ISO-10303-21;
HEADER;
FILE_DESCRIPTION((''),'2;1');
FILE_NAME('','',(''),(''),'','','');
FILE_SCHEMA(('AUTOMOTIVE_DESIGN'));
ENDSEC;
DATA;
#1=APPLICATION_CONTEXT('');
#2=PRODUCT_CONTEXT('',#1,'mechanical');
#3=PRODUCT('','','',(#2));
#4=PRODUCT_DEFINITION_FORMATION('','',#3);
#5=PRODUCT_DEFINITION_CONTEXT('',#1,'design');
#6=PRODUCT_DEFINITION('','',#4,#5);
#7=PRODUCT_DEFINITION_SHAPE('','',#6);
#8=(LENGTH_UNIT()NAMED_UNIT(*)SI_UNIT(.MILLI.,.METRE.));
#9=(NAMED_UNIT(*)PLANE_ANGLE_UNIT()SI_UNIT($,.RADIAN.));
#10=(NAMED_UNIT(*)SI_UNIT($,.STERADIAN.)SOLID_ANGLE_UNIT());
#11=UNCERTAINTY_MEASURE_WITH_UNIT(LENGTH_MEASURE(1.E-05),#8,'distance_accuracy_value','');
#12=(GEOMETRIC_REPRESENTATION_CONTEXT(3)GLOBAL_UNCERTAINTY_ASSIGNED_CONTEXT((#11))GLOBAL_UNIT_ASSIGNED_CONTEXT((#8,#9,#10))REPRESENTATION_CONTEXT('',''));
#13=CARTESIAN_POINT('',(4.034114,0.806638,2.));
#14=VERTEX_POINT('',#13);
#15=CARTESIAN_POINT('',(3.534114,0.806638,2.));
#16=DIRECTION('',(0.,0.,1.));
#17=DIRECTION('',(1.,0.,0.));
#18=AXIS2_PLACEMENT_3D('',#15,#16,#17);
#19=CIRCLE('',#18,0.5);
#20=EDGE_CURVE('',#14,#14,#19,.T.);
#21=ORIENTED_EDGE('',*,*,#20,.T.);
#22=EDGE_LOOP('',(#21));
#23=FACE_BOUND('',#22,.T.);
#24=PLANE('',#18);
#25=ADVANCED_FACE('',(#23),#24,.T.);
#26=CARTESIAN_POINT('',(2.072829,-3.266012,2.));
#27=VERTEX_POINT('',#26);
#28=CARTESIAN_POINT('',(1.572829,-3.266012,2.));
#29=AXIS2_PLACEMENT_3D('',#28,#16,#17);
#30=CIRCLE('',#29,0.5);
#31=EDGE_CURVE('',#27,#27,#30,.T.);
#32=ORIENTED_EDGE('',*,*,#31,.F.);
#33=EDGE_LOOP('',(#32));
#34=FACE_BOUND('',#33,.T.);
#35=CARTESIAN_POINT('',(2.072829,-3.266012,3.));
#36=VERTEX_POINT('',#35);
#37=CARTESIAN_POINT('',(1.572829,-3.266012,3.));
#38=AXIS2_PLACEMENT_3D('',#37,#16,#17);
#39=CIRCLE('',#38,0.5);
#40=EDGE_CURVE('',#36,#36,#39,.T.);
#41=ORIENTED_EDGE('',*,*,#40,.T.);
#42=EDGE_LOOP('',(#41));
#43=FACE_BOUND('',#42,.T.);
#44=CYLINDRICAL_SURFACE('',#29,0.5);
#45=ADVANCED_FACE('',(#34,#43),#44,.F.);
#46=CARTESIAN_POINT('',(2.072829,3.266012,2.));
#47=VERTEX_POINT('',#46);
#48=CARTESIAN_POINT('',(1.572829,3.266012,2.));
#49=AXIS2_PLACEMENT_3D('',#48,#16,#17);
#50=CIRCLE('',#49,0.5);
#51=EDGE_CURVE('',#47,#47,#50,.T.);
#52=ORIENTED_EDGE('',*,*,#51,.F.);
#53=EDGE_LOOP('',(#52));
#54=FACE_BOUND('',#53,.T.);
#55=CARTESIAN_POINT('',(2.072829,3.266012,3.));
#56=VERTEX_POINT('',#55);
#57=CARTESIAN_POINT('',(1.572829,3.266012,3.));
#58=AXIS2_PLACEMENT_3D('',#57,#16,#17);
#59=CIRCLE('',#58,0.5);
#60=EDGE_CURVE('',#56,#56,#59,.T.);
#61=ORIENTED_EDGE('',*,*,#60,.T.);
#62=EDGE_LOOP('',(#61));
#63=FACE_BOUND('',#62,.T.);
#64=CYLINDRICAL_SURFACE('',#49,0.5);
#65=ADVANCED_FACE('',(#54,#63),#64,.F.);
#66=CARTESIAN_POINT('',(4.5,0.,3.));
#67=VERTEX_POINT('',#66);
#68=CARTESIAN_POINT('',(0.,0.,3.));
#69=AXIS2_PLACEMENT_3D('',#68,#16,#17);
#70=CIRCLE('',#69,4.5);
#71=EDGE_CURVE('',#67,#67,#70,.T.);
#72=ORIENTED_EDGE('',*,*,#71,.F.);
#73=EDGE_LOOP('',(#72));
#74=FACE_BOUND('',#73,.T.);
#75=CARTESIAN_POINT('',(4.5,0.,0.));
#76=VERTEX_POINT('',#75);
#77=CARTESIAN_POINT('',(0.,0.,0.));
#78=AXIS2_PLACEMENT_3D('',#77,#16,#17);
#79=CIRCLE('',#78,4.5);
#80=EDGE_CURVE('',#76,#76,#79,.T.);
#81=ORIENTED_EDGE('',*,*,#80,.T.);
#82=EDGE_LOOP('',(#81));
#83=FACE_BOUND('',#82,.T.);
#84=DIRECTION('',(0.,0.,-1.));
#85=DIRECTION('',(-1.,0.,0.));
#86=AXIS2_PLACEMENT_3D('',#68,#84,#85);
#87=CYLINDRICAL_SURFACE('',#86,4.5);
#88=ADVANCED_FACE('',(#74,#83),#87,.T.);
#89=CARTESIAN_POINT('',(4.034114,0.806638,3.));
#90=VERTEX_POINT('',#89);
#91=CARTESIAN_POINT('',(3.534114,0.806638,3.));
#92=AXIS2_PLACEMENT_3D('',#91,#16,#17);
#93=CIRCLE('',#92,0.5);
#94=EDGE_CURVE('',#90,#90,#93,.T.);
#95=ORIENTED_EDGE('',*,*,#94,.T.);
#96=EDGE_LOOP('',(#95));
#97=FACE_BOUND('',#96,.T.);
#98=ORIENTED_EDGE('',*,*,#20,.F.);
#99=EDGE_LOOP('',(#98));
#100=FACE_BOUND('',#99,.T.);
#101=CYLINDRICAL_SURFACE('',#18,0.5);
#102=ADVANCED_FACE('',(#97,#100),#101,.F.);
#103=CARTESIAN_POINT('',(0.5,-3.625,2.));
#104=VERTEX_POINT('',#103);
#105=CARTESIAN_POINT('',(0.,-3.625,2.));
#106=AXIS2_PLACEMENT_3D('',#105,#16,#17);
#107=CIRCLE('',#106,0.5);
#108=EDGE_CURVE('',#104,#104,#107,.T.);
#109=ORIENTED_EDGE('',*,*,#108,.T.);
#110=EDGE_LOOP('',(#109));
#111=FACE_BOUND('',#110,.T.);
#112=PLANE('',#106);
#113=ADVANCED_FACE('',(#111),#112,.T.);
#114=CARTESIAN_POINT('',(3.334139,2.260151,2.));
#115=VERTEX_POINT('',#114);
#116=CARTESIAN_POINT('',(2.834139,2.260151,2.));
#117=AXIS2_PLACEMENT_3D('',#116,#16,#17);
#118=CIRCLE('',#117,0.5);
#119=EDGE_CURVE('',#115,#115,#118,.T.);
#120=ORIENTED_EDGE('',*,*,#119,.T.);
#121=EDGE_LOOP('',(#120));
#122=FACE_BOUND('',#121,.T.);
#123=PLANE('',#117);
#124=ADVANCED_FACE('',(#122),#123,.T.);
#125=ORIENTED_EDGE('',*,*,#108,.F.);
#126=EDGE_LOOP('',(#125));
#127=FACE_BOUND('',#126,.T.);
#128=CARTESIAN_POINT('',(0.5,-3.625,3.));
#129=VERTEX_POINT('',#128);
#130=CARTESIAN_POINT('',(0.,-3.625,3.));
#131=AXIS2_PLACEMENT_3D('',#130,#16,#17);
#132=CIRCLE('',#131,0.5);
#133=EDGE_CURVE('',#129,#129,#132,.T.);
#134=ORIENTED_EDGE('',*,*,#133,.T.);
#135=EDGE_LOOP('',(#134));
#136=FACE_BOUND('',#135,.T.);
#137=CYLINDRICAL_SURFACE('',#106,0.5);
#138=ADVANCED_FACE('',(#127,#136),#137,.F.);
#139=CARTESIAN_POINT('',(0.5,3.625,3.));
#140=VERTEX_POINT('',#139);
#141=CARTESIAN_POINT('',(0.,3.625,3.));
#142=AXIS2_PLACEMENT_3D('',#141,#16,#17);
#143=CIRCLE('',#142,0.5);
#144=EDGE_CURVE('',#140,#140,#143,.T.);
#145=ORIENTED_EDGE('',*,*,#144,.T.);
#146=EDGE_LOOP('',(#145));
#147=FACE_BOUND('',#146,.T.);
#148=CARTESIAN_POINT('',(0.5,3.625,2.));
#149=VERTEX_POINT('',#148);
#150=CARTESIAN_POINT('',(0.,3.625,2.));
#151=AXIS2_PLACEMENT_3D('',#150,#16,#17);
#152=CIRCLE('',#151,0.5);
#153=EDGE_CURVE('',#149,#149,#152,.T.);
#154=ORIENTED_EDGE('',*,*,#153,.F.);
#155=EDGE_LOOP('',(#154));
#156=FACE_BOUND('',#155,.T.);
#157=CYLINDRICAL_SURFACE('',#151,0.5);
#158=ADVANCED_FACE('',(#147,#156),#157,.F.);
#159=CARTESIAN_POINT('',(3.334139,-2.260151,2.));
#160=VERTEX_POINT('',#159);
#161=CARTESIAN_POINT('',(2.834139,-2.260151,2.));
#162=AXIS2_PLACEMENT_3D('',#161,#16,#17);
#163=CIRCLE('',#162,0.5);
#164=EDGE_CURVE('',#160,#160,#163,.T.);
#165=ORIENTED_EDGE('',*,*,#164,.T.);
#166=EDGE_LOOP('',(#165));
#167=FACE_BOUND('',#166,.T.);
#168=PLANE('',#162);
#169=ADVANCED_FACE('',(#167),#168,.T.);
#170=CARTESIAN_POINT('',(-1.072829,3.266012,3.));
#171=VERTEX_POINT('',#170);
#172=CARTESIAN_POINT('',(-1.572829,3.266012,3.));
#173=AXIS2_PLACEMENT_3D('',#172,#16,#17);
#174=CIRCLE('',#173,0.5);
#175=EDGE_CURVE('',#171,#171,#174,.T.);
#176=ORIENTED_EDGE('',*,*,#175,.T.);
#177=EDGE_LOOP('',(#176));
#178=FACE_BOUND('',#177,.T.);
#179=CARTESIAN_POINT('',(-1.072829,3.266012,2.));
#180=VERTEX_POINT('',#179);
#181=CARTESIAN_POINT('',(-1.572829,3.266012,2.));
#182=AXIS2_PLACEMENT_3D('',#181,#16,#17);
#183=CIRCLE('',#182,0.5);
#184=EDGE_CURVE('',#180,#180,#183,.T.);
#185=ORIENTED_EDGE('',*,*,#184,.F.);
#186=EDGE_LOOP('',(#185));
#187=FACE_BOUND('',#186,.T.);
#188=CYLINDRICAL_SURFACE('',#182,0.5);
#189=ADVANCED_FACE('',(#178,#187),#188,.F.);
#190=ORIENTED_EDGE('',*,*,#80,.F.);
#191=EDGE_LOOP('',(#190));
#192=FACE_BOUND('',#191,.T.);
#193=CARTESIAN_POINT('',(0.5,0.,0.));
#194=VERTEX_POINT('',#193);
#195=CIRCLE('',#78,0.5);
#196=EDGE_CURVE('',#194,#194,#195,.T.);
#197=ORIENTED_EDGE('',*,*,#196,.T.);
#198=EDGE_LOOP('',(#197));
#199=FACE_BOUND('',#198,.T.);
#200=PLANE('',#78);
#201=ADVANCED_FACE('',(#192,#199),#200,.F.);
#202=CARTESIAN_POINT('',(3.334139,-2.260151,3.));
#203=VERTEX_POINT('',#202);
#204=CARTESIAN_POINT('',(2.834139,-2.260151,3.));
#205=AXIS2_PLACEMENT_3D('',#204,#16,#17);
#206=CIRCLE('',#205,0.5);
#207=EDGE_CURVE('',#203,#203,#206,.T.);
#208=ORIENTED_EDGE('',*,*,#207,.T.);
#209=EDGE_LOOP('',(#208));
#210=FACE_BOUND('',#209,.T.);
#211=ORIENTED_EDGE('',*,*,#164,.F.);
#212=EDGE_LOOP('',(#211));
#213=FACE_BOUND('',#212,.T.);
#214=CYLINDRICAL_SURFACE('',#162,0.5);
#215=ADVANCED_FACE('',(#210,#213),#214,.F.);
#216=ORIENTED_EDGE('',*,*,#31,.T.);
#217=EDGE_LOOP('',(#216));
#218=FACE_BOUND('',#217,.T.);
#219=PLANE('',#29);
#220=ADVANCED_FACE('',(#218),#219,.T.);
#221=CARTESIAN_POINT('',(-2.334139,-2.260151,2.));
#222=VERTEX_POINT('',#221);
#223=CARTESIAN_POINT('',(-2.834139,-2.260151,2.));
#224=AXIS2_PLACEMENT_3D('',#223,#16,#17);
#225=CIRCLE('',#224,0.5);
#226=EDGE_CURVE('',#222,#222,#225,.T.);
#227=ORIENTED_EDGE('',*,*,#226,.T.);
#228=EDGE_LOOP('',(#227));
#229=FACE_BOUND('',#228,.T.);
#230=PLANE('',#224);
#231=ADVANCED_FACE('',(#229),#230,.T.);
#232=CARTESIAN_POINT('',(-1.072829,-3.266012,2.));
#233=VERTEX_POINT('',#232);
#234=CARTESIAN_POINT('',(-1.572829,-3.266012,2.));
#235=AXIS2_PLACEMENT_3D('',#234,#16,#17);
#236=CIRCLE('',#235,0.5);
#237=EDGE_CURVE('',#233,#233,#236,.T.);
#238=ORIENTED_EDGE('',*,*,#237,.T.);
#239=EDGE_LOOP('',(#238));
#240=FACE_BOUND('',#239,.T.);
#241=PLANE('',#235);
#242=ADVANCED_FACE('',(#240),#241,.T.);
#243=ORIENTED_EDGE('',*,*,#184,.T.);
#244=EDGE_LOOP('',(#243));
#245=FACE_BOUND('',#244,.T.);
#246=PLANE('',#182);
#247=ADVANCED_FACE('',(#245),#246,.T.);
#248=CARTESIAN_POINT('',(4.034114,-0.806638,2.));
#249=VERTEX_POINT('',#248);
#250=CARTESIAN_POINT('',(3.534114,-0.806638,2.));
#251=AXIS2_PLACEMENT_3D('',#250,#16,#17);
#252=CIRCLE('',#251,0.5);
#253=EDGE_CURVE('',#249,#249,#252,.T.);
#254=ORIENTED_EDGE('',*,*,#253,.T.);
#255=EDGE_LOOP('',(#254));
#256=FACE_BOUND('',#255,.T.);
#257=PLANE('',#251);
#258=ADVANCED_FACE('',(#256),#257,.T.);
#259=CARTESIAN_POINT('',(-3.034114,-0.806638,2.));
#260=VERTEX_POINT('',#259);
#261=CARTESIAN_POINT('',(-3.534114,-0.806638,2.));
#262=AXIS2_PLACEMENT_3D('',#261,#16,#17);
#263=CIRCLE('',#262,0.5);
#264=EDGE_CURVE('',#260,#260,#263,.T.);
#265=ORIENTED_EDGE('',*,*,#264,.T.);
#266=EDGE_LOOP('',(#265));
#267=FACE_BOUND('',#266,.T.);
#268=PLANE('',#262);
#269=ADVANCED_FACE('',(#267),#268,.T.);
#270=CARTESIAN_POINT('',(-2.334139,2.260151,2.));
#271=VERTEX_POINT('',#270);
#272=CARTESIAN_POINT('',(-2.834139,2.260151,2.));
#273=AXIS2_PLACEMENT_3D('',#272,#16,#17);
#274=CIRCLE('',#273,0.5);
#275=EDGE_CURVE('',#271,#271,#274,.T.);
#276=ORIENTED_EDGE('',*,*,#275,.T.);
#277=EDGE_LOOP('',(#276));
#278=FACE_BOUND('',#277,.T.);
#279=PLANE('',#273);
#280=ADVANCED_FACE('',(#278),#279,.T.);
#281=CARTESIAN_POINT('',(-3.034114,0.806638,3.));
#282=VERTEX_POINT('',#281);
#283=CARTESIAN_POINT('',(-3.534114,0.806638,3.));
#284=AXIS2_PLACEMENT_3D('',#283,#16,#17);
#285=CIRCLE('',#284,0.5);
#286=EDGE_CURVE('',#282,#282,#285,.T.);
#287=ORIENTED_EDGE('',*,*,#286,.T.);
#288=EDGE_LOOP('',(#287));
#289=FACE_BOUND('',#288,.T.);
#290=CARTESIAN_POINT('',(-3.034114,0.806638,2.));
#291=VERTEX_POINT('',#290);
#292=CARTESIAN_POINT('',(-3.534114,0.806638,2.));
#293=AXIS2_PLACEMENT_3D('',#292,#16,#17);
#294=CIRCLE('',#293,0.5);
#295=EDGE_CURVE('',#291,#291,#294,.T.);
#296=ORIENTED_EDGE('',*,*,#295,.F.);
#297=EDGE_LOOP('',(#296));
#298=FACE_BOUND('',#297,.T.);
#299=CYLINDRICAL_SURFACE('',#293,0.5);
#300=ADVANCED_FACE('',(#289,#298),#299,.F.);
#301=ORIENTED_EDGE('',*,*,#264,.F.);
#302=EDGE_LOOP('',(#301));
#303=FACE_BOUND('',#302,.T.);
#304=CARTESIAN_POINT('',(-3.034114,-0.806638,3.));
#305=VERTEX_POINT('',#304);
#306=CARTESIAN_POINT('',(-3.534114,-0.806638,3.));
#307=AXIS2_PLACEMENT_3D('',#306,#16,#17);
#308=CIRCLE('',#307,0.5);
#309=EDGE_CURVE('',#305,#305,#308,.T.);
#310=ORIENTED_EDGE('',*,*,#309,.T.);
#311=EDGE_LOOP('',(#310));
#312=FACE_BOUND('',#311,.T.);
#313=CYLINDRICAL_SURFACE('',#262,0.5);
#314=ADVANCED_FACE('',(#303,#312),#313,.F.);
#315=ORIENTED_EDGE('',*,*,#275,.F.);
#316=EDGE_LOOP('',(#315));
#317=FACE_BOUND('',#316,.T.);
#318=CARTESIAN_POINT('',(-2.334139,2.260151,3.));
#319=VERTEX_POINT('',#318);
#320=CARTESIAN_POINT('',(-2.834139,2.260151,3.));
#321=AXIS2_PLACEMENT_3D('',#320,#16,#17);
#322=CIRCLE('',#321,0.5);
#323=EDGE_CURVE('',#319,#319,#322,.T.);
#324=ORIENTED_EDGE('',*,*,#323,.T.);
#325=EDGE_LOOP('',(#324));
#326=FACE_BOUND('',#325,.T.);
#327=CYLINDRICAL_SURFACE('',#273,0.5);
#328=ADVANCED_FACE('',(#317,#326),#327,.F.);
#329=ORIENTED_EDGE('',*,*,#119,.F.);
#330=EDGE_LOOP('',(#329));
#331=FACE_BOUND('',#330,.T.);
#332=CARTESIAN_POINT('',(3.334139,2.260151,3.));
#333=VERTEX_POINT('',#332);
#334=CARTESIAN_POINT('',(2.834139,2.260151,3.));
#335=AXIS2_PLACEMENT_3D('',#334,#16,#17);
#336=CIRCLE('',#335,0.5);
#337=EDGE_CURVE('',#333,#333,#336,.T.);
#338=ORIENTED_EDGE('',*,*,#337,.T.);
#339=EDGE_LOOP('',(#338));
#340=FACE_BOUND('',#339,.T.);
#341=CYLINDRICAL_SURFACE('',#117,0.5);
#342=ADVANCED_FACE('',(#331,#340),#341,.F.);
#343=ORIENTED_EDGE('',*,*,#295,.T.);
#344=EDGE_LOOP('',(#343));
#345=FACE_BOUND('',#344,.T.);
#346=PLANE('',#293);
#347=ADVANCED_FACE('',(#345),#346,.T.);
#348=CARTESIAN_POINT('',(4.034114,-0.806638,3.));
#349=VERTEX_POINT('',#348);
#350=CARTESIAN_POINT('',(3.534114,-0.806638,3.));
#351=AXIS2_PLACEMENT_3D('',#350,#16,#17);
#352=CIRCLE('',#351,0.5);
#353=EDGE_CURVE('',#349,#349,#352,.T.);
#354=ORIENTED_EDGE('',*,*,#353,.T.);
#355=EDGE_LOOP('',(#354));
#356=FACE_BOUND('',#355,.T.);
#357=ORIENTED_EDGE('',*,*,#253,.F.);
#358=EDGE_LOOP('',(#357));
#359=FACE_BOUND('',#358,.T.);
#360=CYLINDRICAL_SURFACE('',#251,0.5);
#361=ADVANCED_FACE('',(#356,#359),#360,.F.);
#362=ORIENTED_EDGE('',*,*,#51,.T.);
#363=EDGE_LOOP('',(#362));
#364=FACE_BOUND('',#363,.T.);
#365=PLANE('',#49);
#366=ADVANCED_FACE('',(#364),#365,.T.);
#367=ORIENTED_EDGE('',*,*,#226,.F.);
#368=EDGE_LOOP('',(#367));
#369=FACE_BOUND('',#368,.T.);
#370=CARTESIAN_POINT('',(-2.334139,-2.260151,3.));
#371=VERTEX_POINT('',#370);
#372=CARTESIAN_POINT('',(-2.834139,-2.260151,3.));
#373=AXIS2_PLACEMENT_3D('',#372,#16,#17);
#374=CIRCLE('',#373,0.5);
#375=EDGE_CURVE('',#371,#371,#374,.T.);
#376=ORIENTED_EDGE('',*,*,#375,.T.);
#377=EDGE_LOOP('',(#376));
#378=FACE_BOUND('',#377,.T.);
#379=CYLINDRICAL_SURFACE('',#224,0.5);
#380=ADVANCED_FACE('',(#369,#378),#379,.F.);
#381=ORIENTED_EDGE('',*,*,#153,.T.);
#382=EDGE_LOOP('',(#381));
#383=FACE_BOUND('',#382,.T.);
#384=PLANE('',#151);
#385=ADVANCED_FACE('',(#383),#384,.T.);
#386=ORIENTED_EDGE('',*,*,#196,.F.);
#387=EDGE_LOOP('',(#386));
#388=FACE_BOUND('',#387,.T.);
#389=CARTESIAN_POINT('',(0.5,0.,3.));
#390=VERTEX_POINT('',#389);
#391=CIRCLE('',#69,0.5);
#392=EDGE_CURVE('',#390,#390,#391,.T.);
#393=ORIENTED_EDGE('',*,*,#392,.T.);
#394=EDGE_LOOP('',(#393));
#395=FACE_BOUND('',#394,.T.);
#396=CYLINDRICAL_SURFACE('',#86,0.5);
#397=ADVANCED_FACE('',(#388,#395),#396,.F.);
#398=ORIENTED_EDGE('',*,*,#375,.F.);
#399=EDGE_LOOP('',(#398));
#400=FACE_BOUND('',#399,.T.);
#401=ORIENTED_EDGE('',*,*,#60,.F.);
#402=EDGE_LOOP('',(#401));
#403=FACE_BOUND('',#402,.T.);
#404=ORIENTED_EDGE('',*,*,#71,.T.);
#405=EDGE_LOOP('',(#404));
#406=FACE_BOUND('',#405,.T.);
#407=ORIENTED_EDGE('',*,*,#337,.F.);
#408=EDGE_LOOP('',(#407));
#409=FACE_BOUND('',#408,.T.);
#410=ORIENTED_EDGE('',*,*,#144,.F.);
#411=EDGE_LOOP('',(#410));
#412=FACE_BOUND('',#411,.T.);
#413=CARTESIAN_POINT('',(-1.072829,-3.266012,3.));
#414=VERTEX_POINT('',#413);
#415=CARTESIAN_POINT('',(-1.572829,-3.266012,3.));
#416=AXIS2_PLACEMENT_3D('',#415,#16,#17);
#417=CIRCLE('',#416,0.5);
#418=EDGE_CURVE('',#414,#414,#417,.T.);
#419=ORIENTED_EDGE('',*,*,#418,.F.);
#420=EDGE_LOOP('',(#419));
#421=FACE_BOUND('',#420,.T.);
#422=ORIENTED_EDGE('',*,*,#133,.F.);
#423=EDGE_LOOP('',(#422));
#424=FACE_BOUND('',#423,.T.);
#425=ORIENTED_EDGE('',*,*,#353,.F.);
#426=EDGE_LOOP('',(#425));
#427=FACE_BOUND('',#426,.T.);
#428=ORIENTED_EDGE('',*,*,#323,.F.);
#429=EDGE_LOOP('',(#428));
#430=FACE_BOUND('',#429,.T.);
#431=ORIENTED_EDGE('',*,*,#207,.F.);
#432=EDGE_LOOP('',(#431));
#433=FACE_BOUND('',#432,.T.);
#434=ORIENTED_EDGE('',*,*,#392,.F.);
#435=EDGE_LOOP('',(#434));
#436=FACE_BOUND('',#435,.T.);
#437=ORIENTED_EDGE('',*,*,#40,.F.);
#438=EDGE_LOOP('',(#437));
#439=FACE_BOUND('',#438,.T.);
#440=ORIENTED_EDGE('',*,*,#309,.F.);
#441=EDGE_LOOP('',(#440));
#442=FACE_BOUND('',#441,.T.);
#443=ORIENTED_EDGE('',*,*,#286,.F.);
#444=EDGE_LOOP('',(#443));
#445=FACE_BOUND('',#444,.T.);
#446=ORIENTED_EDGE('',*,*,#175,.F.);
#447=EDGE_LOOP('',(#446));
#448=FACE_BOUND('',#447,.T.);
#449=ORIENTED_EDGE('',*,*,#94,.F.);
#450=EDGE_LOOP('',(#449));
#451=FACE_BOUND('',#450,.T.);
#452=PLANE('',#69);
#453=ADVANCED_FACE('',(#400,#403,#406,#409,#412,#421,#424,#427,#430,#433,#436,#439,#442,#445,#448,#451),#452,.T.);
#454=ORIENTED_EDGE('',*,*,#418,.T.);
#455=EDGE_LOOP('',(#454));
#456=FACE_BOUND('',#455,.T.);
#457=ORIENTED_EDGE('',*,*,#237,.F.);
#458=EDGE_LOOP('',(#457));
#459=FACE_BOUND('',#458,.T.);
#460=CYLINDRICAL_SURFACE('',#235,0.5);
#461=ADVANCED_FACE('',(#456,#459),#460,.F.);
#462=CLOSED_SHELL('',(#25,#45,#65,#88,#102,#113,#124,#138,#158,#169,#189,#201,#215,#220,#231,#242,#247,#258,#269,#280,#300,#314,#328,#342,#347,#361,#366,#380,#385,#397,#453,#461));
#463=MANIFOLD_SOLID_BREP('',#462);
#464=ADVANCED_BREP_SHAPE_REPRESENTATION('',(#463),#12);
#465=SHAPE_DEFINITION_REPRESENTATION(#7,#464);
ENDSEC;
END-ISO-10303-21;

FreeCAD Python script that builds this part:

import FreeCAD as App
import Part
import Sketcher

V = App.Vector

doc = App.newDocument("Part")
body = doc.addObject("PartDesign::Body", "Body")

# Sketch on XY plane
sketch1 = body.newObject("Sketcher::SketchObject", "Sketch")
sketch1.AttachmentSupport = (doc.getObject("XY_Plane"), [""])
sketch1.MapMode = "FlatFace"
sketch1.addGeometry([
    Part.Circle(V(0, 0, 0), V(0, 0, 1), 4.5),
    Part.Circle(V(0, 0, 0), V(0, 0, 1), 0.5),
], False)
sketch1.addConstraint([
    Sketcher.Constraint("Coincident", 0, 3, -1, 1),
    Sketcher.Constraint("Coincident", 1, 3, -1, 1),
    Sketcher.Constraint("Diameter", 0, 9.0),
    Sketcher.Constraint("Diameter", 1, 1.0),
])
pad1 = body.newObject("PartDesign::Pad", "Pad")
pad1.Profile = sketch1
pad1.Length = 3

# Sketch on XY plane
sketch2 = body.newObject("Sketcher::SketchObject", "Sketch001")
sketch2.AttachmentSupport = (doc.getObject("XY_Plane"), [""])
sketch2.MapMode = "FlatFace"
sketch2.AttachmentOffset = App.Placement(V(0, 0, 3), App.Rotation())
sketch2.addGeometry([
    Part.Circle(V(0, 3.6, 0), V(0, 0, 1), 0.5),  # 0
    Part.Circle(V(1.6, 3.3, 0), V(0, 0, 1), 0.5),  # 1
    Part.Circle(V(2.8, 2.3, 0), V(0, 0, 1), 0.5),  # 2
    Part.Circle(V(3.5, 0.8, 0), V(0, 0, 1), 0.5),  # 3
    Part.Circle(V(3.5, -0.8, 0), V(0, 0, 1), 0.5),  # 4
    Part.Circle(V(2.8, -2.3, 0), V(0, 0, 1), 0.5),  # 5
    Part.Circle(V(1.6, -3.3, 0), V(0, 0, 1), 0.5),  # 6
    Part.Circle(V(0, -3.6, 0), V(0, 0, 1), 0.5),  # 7
    Part.Circle(V(-1.6, -3.3, 0), V(0, 0, 1), 0.5),  # 8
    Part.Circle(V(-2.8, -2.3, 0), V(0, 0, 1), 0.5),  # 9
    Part.Circle(V(-3.5, -0.8, 0), V(0, 0, 1), 0.5),  # 10
    Part.Circle(V(-3.5, 0.8, 0), V(0, 0, 1), 0.5),  # 11
    Part.Circle(V(-2.8, 2.3, 0), V(0, 0, 1), 0.5),  # 12
    Part.Circle(V(-1.6, 3.3, 0), V(0, 0, 1), 0.5),  # 13
], False)
sketch2.addConstraint([
    Sketcher.Constraint("Equal", 0, 1),
    Sketcher.Constraint("Equal", 1, 2),
    Sketcher.Constraint("Equal", 2, 3),
    Sketcher.Constraint("Equal", 3, 4),
    Sketcher.Constraint("Equal", 4, 5),
    Sketcher.Constraint("Equal", 5, 6),
    Sketcher.Constraint("Equal", 6, 7),
    Sketcher.Constraint("Equal", 7, 8),
    Sketcher.Constraint("Equal", 8, 9),
    Sketcher.Constraint("Equal", 9, 10),
    Sketcher.Constraint("Equal", 10, 11),
    Sketcher.Constraint("Equal", 11, 12),
    Sketcher.Constraint("Equal", 12, 13),
    Sketcher.Constraint("Symmetric", 0, 3, 7, 3, -1, 1),
    Sketcher.Constraint("Symmetric", 1, 3, 8, 3, -1, 1),
    Sketcher.Constraint("Symmetric", 2, 3, 9, 3, -1, 1),
    Sketcher.Constraint("Symmetric", 3, 3, 10, 3, -1, 1),
    Sketcher.Constraint("Symmetric", 4, 3, 11, 3, -1, 1),
    Sketcher.Constraint("Symmetric", 5, 3, 12, 3, -1, 1),
    Sketcher.Constraint("Symmetric", 6, 3, 13, 3, -1, 1),
    Sketcher.Constraint("Symmetric", 6, 3, 8, 3, -2),
    Sketcher.Constraint("Symmetric", 5, 3, 9, 3, -2),
    Sketcher.Constraint("Symmetric", 4, 3, 10, 3, -2),
    Sketcher.Constraint("PointOnObject", 0, 3, -2),
    Sketcher.Constraint("Diameter", 0, 1.0),
    Sketcher.Constraint("DistanceY", -1, 1, 0, 3, 3.625),
    Sketcher.Constraint("DistanceY", 5, 3, 2, 3, 4.520301),
    Sketcher.Constraint("DistanceX", -1, 1, 1, 3, 1.572829),
    Sketcher.Constraint("DistanceX", -1, 1, 2, 3, 2.834139),
    Sketcher.Constraint("DistanceY", -1, 1, 3, 3, 0.806638),
    Sketcher.Constraint("DistanceY", 2, 3, 1, 3, 1.005862),
    Sketcher.Constraint("DistanceX", -1, 1, 3, 3, 3.534114),
])
pocket1 = body.newObject("PartDesign::Pocket", "Pocket")
pocket1.Profile = sketch2
pocket1.Length = 1

doc.recompute()
